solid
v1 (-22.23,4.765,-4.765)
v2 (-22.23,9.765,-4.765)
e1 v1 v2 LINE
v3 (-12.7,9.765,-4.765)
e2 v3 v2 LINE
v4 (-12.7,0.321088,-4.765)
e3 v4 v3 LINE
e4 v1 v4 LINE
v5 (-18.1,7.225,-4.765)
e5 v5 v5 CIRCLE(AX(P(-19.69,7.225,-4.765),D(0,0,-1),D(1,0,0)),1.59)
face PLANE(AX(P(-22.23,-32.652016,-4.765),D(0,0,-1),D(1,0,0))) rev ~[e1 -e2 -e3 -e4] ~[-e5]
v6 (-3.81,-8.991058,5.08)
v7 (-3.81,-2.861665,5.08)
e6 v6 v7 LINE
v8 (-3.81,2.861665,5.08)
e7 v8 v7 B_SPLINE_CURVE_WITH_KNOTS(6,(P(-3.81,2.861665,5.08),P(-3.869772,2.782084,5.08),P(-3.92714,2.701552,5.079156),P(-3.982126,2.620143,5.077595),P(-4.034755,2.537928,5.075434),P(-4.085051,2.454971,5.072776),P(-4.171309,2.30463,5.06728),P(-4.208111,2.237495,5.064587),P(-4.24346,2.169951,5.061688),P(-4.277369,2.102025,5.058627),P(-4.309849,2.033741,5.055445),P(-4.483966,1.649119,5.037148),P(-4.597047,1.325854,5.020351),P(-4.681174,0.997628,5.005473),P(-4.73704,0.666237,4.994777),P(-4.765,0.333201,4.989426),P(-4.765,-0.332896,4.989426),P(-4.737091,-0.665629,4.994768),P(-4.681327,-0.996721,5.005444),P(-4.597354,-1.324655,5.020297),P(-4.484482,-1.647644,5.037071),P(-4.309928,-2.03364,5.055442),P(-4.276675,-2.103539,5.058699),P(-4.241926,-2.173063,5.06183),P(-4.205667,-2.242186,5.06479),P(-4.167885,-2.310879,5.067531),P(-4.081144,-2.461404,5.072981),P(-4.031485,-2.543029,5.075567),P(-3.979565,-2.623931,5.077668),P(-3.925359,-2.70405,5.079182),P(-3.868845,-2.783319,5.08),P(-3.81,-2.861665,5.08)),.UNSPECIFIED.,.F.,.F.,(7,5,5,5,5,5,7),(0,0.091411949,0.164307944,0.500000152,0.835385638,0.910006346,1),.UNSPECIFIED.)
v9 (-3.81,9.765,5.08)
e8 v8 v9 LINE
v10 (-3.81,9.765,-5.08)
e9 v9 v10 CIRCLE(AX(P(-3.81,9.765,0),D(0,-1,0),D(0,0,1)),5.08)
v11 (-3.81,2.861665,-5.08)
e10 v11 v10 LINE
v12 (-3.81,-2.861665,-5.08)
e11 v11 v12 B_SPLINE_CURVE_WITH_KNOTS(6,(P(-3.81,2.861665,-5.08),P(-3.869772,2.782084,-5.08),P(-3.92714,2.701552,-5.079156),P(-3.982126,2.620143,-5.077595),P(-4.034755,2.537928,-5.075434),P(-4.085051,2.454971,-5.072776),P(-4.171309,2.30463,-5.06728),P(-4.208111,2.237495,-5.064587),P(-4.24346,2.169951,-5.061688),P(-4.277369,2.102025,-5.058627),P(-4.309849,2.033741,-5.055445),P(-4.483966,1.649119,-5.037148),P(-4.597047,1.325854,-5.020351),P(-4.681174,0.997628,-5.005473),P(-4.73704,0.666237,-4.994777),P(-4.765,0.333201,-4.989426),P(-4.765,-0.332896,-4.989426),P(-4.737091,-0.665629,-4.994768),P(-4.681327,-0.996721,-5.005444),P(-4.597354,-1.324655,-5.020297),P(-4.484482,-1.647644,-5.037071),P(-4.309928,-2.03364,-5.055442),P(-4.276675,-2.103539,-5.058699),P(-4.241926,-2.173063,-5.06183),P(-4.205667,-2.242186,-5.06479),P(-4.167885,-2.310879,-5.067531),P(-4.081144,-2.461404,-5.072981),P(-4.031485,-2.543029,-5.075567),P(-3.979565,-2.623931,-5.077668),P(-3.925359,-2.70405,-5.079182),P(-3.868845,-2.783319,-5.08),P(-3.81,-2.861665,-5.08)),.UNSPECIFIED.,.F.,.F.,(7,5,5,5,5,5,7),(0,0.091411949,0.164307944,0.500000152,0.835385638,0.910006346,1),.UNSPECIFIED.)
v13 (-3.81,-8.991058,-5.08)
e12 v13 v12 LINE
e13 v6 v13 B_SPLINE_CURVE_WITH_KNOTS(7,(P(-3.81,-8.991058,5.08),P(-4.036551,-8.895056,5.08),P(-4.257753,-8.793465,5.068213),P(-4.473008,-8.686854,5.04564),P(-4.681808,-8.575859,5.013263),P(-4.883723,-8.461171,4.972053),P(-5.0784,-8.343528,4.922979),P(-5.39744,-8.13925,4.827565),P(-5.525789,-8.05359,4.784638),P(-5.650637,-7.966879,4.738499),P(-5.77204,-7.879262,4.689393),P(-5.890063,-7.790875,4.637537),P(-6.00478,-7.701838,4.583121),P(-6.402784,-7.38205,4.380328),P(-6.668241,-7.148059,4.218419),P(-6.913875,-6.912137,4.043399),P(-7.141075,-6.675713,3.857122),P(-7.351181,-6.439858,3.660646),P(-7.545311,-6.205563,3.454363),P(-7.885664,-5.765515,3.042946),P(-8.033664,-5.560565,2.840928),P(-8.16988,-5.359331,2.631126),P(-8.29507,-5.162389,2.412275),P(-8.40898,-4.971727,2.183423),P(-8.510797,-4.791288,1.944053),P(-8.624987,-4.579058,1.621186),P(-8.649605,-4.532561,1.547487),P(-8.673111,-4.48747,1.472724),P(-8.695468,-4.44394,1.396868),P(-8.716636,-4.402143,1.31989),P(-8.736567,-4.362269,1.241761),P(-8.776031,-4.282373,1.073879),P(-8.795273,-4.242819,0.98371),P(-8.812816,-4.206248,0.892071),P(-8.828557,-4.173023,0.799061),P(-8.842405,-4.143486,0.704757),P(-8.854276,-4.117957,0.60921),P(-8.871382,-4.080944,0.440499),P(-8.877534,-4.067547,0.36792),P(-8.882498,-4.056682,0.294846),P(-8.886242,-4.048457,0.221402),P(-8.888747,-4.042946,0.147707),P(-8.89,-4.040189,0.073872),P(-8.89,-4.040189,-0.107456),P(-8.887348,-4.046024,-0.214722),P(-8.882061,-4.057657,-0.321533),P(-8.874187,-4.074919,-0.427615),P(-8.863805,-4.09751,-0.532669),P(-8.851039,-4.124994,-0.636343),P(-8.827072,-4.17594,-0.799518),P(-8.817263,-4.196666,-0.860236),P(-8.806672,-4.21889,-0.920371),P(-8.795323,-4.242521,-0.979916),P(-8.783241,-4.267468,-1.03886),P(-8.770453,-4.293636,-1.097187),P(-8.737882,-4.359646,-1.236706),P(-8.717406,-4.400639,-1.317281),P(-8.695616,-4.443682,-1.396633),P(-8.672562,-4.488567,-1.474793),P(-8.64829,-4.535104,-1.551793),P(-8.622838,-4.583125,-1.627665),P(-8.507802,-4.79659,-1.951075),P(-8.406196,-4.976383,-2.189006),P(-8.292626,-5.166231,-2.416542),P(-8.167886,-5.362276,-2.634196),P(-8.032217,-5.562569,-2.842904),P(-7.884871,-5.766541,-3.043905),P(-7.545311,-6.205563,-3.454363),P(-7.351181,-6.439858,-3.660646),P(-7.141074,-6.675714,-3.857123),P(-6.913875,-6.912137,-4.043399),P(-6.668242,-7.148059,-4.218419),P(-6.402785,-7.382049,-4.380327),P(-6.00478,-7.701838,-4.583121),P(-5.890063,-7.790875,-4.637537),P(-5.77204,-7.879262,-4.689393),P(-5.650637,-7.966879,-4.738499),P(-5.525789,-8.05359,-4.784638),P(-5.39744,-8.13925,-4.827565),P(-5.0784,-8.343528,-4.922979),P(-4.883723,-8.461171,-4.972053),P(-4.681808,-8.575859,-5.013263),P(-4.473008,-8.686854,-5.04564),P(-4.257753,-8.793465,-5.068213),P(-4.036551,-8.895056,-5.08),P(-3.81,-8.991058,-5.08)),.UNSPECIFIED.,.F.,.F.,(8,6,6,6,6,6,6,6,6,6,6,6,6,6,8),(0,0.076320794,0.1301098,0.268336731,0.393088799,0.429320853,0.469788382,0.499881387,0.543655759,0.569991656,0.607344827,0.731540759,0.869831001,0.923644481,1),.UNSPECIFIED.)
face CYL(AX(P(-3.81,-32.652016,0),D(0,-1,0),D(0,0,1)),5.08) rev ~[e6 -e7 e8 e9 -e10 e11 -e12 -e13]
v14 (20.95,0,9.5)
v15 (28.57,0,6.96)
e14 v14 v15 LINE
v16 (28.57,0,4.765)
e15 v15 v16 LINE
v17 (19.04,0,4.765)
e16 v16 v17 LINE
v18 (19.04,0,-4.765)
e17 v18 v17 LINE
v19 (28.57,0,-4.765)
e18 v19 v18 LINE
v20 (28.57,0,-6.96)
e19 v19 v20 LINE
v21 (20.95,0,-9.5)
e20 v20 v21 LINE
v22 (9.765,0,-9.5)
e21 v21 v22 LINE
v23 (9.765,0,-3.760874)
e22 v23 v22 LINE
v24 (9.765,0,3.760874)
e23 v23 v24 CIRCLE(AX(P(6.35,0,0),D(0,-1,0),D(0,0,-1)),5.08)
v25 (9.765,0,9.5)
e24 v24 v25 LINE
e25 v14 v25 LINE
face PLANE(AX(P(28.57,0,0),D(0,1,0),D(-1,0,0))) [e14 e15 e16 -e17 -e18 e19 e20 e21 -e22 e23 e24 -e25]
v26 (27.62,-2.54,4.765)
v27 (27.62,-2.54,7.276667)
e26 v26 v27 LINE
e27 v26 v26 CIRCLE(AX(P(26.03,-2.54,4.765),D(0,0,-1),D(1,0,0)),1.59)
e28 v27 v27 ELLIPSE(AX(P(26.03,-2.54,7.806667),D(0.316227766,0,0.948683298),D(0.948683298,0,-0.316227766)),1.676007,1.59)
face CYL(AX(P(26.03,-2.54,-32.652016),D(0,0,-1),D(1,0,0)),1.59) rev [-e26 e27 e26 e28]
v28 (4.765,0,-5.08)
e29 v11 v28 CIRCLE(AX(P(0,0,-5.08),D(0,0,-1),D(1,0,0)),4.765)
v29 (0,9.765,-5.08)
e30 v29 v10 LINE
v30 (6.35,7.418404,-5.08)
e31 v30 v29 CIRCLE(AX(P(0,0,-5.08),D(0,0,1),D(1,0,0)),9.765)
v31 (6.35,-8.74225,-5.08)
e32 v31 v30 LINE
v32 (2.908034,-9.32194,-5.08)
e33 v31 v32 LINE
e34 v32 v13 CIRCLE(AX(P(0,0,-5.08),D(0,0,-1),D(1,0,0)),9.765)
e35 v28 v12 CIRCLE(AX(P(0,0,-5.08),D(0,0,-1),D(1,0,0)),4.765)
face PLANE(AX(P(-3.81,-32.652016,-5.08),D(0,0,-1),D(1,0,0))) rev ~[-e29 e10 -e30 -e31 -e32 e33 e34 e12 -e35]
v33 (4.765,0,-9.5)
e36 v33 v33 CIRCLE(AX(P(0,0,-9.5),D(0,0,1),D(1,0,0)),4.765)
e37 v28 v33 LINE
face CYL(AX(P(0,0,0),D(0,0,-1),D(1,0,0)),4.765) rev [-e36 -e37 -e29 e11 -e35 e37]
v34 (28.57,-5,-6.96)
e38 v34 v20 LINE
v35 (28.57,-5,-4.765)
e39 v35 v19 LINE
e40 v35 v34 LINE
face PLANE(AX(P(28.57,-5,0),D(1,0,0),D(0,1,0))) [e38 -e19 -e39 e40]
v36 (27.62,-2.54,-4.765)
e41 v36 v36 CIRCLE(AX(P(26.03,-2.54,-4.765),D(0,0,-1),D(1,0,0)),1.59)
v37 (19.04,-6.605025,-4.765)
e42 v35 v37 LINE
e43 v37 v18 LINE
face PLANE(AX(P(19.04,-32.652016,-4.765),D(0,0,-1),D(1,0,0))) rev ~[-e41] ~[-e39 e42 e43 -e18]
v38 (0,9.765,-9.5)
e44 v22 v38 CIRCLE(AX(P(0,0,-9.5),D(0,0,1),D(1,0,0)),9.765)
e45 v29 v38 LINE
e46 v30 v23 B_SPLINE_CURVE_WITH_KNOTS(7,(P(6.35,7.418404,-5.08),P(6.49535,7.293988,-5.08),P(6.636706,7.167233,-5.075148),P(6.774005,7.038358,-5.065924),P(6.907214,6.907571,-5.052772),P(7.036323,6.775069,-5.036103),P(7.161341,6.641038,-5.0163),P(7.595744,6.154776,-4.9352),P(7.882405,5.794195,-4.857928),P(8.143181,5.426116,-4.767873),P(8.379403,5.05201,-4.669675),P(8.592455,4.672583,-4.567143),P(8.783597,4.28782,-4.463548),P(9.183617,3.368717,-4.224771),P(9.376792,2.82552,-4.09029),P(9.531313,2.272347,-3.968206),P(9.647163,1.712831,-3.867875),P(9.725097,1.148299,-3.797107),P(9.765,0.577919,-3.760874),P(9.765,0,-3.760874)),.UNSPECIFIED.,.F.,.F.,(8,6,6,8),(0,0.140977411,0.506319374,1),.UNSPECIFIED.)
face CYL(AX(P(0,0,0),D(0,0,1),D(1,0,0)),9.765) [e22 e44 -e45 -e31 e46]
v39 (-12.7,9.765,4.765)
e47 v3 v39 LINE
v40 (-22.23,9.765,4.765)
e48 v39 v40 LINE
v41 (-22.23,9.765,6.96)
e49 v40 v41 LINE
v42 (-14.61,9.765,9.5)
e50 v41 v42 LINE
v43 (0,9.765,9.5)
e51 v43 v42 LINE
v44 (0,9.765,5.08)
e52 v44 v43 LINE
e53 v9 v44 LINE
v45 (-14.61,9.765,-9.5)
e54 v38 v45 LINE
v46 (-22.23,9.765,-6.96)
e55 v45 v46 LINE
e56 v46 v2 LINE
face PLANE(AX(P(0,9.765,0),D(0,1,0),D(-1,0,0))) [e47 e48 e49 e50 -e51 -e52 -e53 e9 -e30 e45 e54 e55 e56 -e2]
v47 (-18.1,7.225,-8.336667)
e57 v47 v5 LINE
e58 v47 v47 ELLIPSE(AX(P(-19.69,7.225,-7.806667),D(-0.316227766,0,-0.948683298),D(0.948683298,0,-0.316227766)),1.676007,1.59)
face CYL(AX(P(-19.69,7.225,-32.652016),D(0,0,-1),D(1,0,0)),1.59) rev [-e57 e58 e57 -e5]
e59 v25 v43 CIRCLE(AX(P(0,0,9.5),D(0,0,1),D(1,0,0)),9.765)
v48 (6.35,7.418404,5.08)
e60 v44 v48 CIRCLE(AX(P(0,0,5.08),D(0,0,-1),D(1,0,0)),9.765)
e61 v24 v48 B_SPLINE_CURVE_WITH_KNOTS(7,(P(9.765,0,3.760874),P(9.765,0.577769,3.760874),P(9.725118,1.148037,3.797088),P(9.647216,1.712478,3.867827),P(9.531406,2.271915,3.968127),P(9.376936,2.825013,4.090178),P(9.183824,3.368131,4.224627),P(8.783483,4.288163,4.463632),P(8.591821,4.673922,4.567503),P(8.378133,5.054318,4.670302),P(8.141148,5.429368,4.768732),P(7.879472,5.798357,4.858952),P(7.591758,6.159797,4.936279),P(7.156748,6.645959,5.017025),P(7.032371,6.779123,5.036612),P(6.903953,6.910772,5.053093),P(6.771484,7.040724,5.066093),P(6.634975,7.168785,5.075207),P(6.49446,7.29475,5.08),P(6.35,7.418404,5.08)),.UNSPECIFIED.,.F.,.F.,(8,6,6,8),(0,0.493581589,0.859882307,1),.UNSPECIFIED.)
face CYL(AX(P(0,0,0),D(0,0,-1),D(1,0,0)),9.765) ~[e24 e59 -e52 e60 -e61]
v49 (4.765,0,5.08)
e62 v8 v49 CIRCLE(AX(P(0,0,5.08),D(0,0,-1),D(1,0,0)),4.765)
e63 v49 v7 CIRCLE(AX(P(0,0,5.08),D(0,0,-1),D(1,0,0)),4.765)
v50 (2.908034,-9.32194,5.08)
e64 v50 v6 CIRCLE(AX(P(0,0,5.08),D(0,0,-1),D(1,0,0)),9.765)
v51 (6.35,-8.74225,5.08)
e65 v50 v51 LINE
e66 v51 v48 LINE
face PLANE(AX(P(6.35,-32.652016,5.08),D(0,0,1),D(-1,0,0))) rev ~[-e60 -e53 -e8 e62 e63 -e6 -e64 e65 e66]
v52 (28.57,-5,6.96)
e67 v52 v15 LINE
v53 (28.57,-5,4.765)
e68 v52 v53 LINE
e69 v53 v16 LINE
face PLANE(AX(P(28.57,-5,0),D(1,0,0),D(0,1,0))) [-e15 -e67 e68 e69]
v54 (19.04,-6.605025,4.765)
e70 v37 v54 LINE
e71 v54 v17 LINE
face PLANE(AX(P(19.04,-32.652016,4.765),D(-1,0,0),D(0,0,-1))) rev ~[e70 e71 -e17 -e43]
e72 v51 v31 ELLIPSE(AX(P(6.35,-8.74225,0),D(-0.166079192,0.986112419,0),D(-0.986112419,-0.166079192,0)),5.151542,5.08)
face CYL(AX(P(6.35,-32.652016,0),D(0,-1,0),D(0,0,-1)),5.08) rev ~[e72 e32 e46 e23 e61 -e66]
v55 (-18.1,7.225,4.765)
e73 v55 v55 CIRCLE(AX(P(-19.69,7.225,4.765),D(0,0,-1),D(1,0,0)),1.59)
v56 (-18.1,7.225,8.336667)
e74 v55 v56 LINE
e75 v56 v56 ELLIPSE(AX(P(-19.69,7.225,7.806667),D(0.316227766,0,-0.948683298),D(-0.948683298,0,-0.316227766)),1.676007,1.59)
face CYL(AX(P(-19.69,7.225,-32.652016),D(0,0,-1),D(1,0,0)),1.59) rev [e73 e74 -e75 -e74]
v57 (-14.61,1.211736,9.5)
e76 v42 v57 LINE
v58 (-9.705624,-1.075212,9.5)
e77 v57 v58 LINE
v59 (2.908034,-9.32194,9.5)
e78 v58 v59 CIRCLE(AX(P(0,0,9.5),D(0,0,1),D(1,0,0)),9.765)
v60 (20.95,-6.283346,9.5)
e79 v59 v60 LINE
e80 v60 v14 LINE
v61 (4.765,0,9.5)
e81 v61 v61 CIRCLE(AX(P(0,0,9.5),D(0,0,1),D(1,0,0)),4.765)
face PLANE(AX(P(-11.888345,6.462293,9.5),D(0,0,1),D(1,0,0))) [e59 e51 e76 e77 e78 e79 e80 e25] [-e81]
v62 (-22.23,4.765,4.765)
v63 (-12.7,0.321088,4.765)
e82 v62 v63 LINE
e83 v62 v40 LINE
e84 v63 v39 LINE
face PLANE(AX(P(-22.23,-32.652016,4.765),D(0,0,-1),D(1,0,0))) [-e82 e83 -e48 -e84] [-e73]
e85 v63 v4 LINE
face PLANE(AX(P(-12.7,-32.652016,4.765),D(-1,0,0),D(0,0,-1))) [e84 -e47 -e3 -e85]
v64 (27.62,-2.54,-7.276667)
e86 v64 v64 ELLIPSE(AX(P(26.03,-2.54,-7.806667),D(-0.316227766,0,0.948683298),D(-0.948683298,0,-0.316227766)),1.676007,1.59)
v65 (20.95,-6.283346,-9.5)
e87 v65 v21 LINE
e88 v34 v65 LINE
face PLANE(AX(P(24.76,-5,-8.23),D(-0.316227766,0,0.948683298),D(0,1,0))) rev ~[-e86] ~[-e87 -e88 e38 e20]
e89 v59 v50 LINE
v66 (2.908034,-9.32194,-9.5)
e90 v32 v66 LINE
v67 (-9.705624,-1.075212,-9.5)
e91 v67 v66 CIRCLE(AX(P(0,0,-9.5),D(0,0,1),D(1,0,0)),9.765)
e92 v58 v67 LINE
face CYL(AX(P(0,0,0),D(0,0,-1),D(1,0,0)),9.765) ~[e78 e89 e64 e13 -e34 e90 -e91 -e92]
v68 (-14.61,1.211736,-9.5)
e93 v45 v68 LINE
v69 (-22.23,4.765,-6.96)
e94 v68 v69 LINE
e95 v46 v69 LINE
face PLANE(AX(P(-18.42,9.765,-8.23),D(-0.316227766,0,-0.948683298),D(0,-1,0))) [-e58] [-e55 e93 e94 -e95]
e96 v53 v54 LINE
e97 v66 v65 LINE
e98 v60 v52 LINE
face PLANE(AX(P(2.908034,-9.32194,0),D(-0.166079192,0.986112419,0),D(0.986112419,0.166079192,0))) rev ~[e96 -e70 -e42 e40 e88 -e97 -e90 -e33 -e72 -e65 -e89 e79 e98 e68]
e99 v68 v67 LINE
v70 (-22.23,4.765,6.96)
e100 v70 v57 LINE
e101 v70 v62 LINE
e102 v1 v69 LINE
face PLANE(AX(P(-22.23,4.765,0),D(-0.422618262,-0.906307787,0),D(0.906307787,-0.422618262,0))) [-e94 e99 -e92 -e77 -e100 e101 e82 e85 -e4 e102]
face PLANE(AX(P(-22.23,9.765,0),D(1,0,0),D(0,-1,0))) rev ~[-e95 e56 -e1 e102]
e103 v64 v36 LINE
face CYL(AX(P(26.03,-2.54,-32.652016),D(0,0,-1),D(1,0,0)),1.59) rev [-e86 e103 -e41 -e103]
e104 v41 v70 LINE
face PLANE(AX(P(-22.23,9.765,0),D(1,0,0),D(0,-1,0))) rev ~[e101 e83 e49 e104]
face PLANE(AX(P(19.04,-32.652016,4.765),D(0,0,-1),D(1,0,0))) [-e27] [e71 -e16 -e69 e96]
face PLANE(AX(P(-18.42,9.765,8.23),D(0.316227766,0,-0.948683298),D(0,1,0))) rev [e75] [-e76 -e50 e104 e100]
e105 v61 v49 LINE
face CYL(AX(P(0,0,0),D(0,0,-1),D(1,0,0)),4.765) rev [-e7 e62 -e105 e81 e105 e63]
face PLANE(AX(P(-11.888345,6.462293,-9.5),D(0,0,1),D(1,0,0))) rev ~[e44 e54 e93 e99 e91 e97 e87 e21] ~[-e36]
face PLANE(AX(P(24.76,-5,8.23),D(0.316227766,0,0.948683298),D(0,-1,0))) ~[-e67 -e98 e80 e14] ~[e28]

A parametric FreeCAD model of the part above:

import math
import FreeCAD as App
import Part
import Sketcher
from FreeCAD import Vector
Q = App.Units.Quantity


def edges_at(feature, points):
    """Names of the edges that pass closest to the given points."""
    edges = feature.Shape.Edges
    near = lambda p: min(range(len(edges)), key=lambda i: edges[i].distToShape(Part.Vertex(*p))[0])
    return sorted({f"Edge{near(p) + 1}" for p in points})

doc = App.newDocument("Part")
body = doc.addObject("PartDesign::Body", "Body")

sketch1 = body.newObject("Sketcher::SketchObject", "Sketch")
sketch1.AttachmentSupport = (doc.getObject("XY_Plane"), [""])
sketch1.MapMode = "FlatFace"
sketch1.addGeometry([
    Part.LineSegment(Vector(0, 9.8, 0), Vector(-22.2, 9.8, 0)),
    Part.LineSegment(Vector(-22.2, 9.8, 0), Vector(-22.2, 4.8, 0)),
    Part.LineSegment(Vector(-22.2, 4.8, 0), Vector(-9.7, -1.1, 0)),
    Part.ArcOfCircle(Part.Circle(Vector(0, 0, 0), Vector(0, 0, 1), 9.8), math.radians(-174), math.radians(-73)),
    Part.LineSegment(Vector(2.9, -9.3, 0), Vector(28.6, -5, 0)),
    Part.LineSegment(Vector(28.6, -5, 0), Vector(28.6, 0, 0)),
    Part.LineSegment(Vector(28.6, 0, 0), Vector(9.8, 0, 0)),
    Part.ArcOfCircle(Part.Circle(Vector(0, 0, 0), Vector(0, 0, 1), 9.8), math.radians(0), math.radians(90)),
    Part.Circle(Vector(0, 0, 0), Vector(0, 0, 1), 4.8),
], False)
sketch1.addConstraint([
    Sketcher.Constraint("Coincident", 0, 2, 1, 1),
    Sketcher.Constraint("Coincident", 1, 2, 2, 1),
    Sketcher.Constraint("Coincident", 2, 2, 3, 1),
    Sketcher.Constraint("Coincident", 3, 2, 4, 1),
    Sketcher.Constraint("Coincident", 4, 2, 5, 1),
    Sketcher.Constraint("Coincident", 5, 2, 6, 1),
    Sketcher.Constraint("Coincident", 6, 2, 7, 1),
    Sketcher.Constraint("Tangent", 7, 2, 0, 1),
    Sketcher.Constraint("Horizontal", 0),
    Sketcher.Constraint("Vertical", 1),
    Sketcher.Constraint("Vertical", 5),
    Sketcher.Constraint("Horizontal", 6),
    Sketcher.Constraint("Coincident", 3, 3, -1, 1),
    Sketcher.Constraint("Coincident", 7, 3, -1, 1),
    Sketcher.Constraint("Coincident", 8, 3, -1, 1),
    Sketcher.Constraint("Equal", 3, 7),
    Sketcher.Constraint("PointOnObject", 5, 2, -1),
    Sketcher.Constraint("Equal", 1, 5),
    Sketcher.Constraint("Angle", 2, Q("-25 deg")),
    Sketcher.Constraint("Diameter", 8, Q("9.53 mm")),
    Sketcher.Constraint("Radius", 3, Q("9.765 mm")),
    Sketcher.Constraint("DistanceX", 0, 2, 0, 1, Q("22.23 mm")),
    Sketcher.Constraint("DistanceX", 6, 2, 6, 1, Q("18.805 mm")),
    Sketcher.Constraint("DistanceY", 1, 2, 1, 1, Q("5 mm")),
    Sketcher.Constraint("DistanceY", 3, 2, -1, 1, Q("9.32194 mm")),
])
pad1 = body.newObject("PartDesign::Pad", "Pad")
pad1.Profile = sketch1
pad1.Length = 19
pad1.Midplane = True
doc.recompute()

chamfer = body.newObject("PartDesign::Chamfer", "Chamfer")
chamfer.Base = (pad1, edges_at(pad1, [(-22.23, 7.265, 9.5)]))
chamfer.ChamferType = "Two distances"
chamfer.Size = Q("0.1 in")
chamfer.Size2 = Q("0.3 in")
doc.recompute()

chamfer2 = body.newObject("PartDesign::Chamfer", "Chamfer001")
chamfer2.Base = (chamfer, edges_at(chamfer, [(-22.23, 7.265, -9.5)]))
chamfer2.ChamferType = "Two distances"
chamfer2.Size = Q("0.3 in")
chamfer2.Size2 = Q("0.1 in")
chamfer2.FlipDirection = True
doc.recompute()

chamfer3 = body.newObject("PartDesign::Chamfer", "Chamfer002")
chamfer3.Base = (chamfer2, edges_at(chamfer2, [(28.57, -2.5, 9.5)]))
chamfer3.ChamferType = "Two distances"
chamfer3.Size = Q("0.3 in")
chamfer3.Size2 = Q("0.1 in")
doc.recompute()

chamfer4 = body.newObject("PartDesign::Chamfer", "Chamfer003")
chamfer4.Base = (chamfer3, edges_at(chamfer3, [(28.57, -2.5, -9.5)]))
chamfer4.ChamferType = "Two distances"
chamfer4.Size = Q("0.1 in")
chamfer4.Size2 = Q("0.3 in")

sketch2 = body.newObject("Sketcher::SketchObject", "Sketch001")
sketch2.AttachmentSupport = (doc.getObject("XZ_Plane"), [""])
sketch2.MapMode = "FlatFace"
sketch2.addGeometry([
    Part.LineSegment(Vector(6, -5, 0), Vector(-4, -5, 0)),
    Part.ArcOfCircle(Part.Circle(Vector(-4, 0, 0), Vector(0, 0, 1), 5), math.radians(90), math.radians(270)),
    Part.LineSegment(Vector(-4, 5, 0), Vector(6, 5, 0)),
    Part.ArcOfCircle(Part.Circle(Vector(6, 0, 0), Vector(0, 0, 1), 5), math.radians(-90), math.radians(90)),
], False)
sketch2.addConstraint([
    Sketcher.Constraint("Tangent", 0, 2, 1, 2),
    Sketcher.Constraint("Tangent", 1, 1, 2, 1),
    Sketcher.Constraint("Tangent", 2, 2, 3, 2),
    Sketcher.Constraint("Tangent", 3, 1, 0, 1),
    Sketcher.Constraint("Horizontal", 0),
    Sketcher.Constraint("Horizontal", 2),
    Sketcher.Constraint("PointOnObject", 1, 3, -1),
    Sketcher.Constraint("Radius", 1, Q("0.2 in")),
    Sketcher.Constraint("DistanceX", 0, 2, 0, 1, Q("0.4 in")),
    Sketcher.Constraint("DistanceX", 1, 3, -1, 1, Q("0.15 in")),
])
pocket1 = body.newObject("PartDesign::Pocket", "Pocket")
pocket1.Profile = sketch2
pocket1.Type = "ThroughAll"
pocket1.Midplane = True

sketch3 = body.newObject("Sketcher::SketchObject", "Sketch002")
sketch3.AttachmentSupport = (doc.getObject("XZ_Plane"), [""])
sketch3.MapMode = "FlatFace"
sketch3.addGeometry([
    Part.LineSegment(Vector(-22, -5, 0), Vector(-22, 5, 0)),
    Part.LineSegment(Vector(-22, 5, 0), Vector(-13, 5, 0)),
    Part.LineSegment(Vector(-13, 5, 0), Vector(-13, -5, 0)),
    Part.LineSegment(Vector(-13, -5, 0), Vector(-22, -5, 0)),
    Part.LineSegment(Vector(19, -5, 0), Vector(19, 5, 0)),
    Part.LineSegment(Vector(19, 5, 0), Vector(29, 5, 0)),
    Part.LineSegment(Vector(29, 5, 0), Vector(29, -5, 0)),
    Part.LineSegment(Vector(29, -5, 0), Vector(19, -5, 0)),
], False)
sketch3.addConstraint([
    Sketcher.Constraint("Coincident", 0, 2, 1, 1),
    Sketcher.Constraint("Coincident", 1, 2, 2, 1),
    Sketcher.Constraint("Coincident", 2, 2, 3, 1),
    Sketcher.Constraint("Coincident", 3, 2, 0, 1),
    Sketcher.Constraint("Coincident", 4, 2, 5, 1),
    Sketcher.Constraint("Coincident", 5, 2, 6, 1),
    Sketcher.Constraint("Coincident", 6, 2, 7, 1),
    Sketcher.Constraint("Coincident", 7, 2, 4, 1),
    Sketcher.Constraint("Vertical", 0),
    Sketcher.Constraint("Horizontal", 1),
    Sketcher.Constraint("Vertical", 2),
    Sketcher.Constraint("Horizontal", 3),
    Sketcher.Constraint("Vertical", 4),
    Sketcher.Constraint("Horizontal", 5),
    Sketcher.Constraint("Vertical", 6),
    Sketcher.Constraint("Horizontal", 7),
    Sketcher.Constraint("Horizontal", 1, 2, 4, 2),
    Sketcher.Constraint("Horizontal", 3, 2, 6, 2),
    Sketcher.Constraint("Equal", 3, 5),
    Sketcher.Constraint("Equal", 7, 0),
    Sketcher.Constraint("DistanceX", 0, 2, 5, 2, Q("2 in")),
    Sketcher.Constraint("DistanceX", 1, 2, -1, 1, Q("0.5 in")),
    Sketcher.Constraint("DistanceX", 1, 1, 1, 2, Q("9.53 mm")),
    Sketcher.Constraint("DistanceY", -1, 1, 0, 2, Q("4.765 mm")),
])
pocket2 = body.newObject("PartDesign::Pocket", "Pocket001")
pocket2.Profile = sketch3
pocket2.Type = "ThroughAll"
pocket2.Midplane = True

sketch4 = body.newObject("Sketcher::SketchObject", "Sketch003")
sketch4.AttachmentSupport = (doc.getObject("XY_Plane"), [""])
sketch4.MapMode = "FlatFace"
sketch4.addGeometry([
    Part.Circle(Vector(26, -2.5, 0), Vector(0, 0, 1), 1.6),
    Part.Circle(Vector(-19.7, 7.2, 0), Vector(0, 0, 1), 1.6),
], False)
sketch4.addConstraint([
    Sketcher.Constraint("Equal", 0, 1),
    Sketcher.Constraint("DistanceY", 0, 3, -1, 1, Q("0.1 in")),
    Sketcher.Constraint("DistanceX", 1, 3, 0, 3, Q("1.8 in")),
    Sketcher.Constraint("Diameter", 0, Q("3.18 mm")),
    Sketcher.Constraint("DistanceX", -1, 1, 0, 3, Q("26.03 mm")),
    Sketcher.Constraint("DistanceY", -1, 1, 1, 3, Q("7.225 mm")),
])
pocket3 = body.newObject("PartDesign::Pocket", "Pocket002")
pocket3.Profile = sketch4
pocket3.Type = "ThroughAll"
pocket3.Midplane = True

doc.recompute()
